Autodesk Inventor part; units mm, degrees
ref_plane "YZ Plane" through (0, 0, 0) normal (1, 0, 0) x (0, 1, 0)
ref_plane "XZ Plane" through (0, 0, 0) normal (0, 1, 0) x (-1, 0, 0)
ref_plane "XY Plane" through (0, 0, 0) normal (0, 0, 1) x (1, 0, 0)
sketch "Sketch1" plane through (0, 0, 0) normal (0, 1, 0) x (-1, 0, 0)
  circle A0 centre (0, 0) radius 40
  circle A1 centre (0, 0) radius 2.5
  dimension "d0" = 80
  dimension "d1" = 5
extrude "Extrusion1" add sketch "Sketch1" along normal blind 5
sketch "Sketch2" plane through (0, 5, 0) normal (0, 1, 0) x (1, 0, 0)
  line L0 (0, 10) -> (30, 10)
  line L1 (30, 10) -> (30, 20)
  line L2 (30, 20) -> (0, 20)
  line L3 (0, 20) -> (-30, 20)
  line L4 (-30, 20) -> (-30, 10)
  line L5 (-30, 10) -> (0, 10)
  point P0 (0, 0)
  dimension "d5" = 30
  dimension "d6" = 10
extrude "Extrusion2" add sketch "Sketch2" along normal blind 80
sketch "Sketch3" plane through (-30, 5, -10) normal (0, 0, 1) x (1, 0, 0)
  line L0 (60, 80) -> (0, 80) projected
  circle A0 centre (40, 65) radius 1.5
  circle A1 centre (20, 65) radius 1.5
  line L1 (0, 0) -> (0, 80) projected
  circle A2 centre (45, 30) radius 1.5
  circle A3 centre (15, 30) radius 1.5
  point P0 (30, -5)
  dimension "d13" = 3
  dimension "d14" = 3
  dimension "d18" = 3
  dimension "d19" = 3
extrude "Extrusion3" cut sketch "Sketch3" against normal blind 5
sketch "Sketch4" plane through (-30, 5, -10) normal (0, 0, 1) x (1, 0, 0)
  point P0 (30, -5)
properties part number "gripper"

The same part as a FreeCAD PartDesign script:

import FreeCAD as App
import Part
import Sketcher

V = App.Vector


def add_polygon(sketch, points):
    """Adds a closed chain of lines whose ends are joined by coincident constraints."""
    first, n = sketch.GeometryCount, len(points)
    for a, b in zip(points, points[1:] + points[:1]):
        sketch.addGeometry(Part.LineSegment(App.Vector(*a, 0), App.Vector(*b, 0)), False)
    for i in range(n):
        sketch.addConstraint(Sketcher.Constraint("Coincident", first + i, 2, first + (i + 1) % n, 1))

doc = App.newDocument("Part")
params = doc.addObject("Spreadsheet::Sheet", "Params")
for row, (alias, value) in enumerate([
    ("sketch1_diameter", "80 mm"),
    ("sketch1_diameter2", "5 mm"),
    ("pad1_length", "5 mm"),
    ("sketch2_height", "10 mm"),
    ("pad2_length", "80 mm"),
    ("sketch3_diameter", "3 mm"),
    ("pocket1_length", "5 mm"),
], start=1):
    params.set(f"A{row}", alias)
    params.set(f"B{row}", "=" + value)
    params.setAlias(f"B{row}", alias)

body = doc.addObject("PartDesign::Body", "Body")

sketch1 = body.newObject("Sketcher::SketchObject", "Sketch")
sketch1.AttachmentSupport = (doc.getObject("XZ_Plane"), [""])
sketch1.MapMode = "FlatFace"
sketch1.addGeometry(Part.Circle(V(0, 0, 0), V(0, 0, 1), 40), False)
sketch1.addGeometry(Part.Circle(V(0, 0, 0), V(0, 0, 1), 2.5), False)
sketch1.addConstraint(Sketcher.Constraint("Coincident", 0, 3, -1, 1))
sketch1.addConstraint(Sketcher.Constraint("Coincident", 1, 3, -1, 1))
sketch1.addConstraint(Sketcher.Constraint("Diameter", 0, 80.0))
sketch1.addConstraint(Sketcher.Constraint("Diameter", 1, 5.0))
sketch1.setExpression("Constraints[2]", "Params.sketch1_diameter")
sketch1.setExpression("Constraints[3]", "Params.sketch1_diameter2")
pad1 = body.newObject("PartDesign::Pad", "Pad")
pad1.Profile = sketch1
pad1.setExpression("Length", "Params.pad1_length")
pad1.Reversed = True

sketch2 = body.newObject("Sketcher::SketchObject", "Sketch001")
sketch2.AttachmentSupport = (doc.getObject("XZ_Plane"), [""])
sketch2.MapMode = "FlatFace"
sketch2.AttachmentOffset = App.Placement(V(0, 0, -5), App.Rotation())
add_polygon(sketch2, [(-30, -10), (30, -10), (30, -20), (-30, -20)])
sketch2.addConstraint(Sketcher.Constraint("Horizontal", 0))
sketch2.addConstraint(Sketcher.Constraint("Vertical", 1))
sketch2.addConstraint(Sketcher.Constraint("Horizontal", 2))
sketch2.addConstraint(Sketcher.Constraint("Vertical", 3))
sketch2.addConstraint(Sketcher.Constraint("DistanceY", 1, 2, 1, 1, 10.0))
sketch2.addConstraint(Sketcher.Constraint("DistanceX", -1, 1, 0, 2, 30.0))
sketch2.addConstraint(Sketcher.Constraint("DistanceY", 0, 2, -1, 1, 10.0))
sketch2.addConstraint(Sketcher.Constraint("DistanceX", 2, 2, -1, 1, 30.0))
sketch2.setExpression("Constraints[8]", "Params.sketch2_height")
pad2 = body.newObject("PartDesign::Pad", "Pad001")
pad2.Profile = sketch2
pad2.setExpression("Length", "Params.pad2_length")
pad2.Reversed = True

sketch3 = body.newObject("Sketcher::SketchObject", "Sketch002")
sketch3.AttachmentSupport = (doc.getObject("XY_Plane"), [""])
sketch3.MapMode = "FlatFace"
sketch3.AttachmentOffset = App.Placement(V(0, 0, -10), App.Rotation())
sketch3.addGeometry(Part.Circle(V(10, 70, 0), V(0, 0, 1), 1.5), False)
sketch3.addGeometry(Part.Circle(V(-10, 70, 0), V(0, 0, 1), 1.5), False)
sketch3.addGeometry(Part.Circle(V(15, 35, 0), V(0, 0, 1), 1.5), False)
sketch3.addGeometry(Part.Circle(V(-15, 35, 0), V(0, 0, 1), 1.5), False)
sketch3.addConstraint(Sketcher.Constraint("Equal", 0, 1))
sketch3.addConstraint(Sketcher.Constraint("Equal", 1, 2))
sketch3.addConstraint(Sketcher.Constraint("Equal", 2, 3))
sketch3.addConstraint(Sketcher.Constraint("Symmetric", 0, 3, 1, 3, -2))
sketch3.addConstraint(Sketcher.Constraint("Symmetric", 2, 3, 3, 3, -2))
sketch3.addConstraint(Sketcher.Constraint("Diameter", 0, 3.0))
sketch3.addConstraint(Sketcher.Constraint("DistanceX", -1, 1, 0, 3, 10.0))
sketch3.addConstraint(Sketcher.Constraint("DistanceY", -1, 1, 0, 3, 70.0))
sketch3.addConstraint(Sketcher.Constraint("DistanceX", -1, 1, 2, 3, 15.0))
sketch3.addConstraint(Sketcher.Constraint("DistanceY", -1, 1, 2, 3, 35.0))
sketch3.setExpression("Constraints[5]", "Params.sketch3_diameter")
pocket1 = body.newObject("PartDesign::Pocket", "Pocket")
pocket1.Profile = sketch3
pocket1.setExpression("Length", "Params.pocket1_length")

doc.recompute()
